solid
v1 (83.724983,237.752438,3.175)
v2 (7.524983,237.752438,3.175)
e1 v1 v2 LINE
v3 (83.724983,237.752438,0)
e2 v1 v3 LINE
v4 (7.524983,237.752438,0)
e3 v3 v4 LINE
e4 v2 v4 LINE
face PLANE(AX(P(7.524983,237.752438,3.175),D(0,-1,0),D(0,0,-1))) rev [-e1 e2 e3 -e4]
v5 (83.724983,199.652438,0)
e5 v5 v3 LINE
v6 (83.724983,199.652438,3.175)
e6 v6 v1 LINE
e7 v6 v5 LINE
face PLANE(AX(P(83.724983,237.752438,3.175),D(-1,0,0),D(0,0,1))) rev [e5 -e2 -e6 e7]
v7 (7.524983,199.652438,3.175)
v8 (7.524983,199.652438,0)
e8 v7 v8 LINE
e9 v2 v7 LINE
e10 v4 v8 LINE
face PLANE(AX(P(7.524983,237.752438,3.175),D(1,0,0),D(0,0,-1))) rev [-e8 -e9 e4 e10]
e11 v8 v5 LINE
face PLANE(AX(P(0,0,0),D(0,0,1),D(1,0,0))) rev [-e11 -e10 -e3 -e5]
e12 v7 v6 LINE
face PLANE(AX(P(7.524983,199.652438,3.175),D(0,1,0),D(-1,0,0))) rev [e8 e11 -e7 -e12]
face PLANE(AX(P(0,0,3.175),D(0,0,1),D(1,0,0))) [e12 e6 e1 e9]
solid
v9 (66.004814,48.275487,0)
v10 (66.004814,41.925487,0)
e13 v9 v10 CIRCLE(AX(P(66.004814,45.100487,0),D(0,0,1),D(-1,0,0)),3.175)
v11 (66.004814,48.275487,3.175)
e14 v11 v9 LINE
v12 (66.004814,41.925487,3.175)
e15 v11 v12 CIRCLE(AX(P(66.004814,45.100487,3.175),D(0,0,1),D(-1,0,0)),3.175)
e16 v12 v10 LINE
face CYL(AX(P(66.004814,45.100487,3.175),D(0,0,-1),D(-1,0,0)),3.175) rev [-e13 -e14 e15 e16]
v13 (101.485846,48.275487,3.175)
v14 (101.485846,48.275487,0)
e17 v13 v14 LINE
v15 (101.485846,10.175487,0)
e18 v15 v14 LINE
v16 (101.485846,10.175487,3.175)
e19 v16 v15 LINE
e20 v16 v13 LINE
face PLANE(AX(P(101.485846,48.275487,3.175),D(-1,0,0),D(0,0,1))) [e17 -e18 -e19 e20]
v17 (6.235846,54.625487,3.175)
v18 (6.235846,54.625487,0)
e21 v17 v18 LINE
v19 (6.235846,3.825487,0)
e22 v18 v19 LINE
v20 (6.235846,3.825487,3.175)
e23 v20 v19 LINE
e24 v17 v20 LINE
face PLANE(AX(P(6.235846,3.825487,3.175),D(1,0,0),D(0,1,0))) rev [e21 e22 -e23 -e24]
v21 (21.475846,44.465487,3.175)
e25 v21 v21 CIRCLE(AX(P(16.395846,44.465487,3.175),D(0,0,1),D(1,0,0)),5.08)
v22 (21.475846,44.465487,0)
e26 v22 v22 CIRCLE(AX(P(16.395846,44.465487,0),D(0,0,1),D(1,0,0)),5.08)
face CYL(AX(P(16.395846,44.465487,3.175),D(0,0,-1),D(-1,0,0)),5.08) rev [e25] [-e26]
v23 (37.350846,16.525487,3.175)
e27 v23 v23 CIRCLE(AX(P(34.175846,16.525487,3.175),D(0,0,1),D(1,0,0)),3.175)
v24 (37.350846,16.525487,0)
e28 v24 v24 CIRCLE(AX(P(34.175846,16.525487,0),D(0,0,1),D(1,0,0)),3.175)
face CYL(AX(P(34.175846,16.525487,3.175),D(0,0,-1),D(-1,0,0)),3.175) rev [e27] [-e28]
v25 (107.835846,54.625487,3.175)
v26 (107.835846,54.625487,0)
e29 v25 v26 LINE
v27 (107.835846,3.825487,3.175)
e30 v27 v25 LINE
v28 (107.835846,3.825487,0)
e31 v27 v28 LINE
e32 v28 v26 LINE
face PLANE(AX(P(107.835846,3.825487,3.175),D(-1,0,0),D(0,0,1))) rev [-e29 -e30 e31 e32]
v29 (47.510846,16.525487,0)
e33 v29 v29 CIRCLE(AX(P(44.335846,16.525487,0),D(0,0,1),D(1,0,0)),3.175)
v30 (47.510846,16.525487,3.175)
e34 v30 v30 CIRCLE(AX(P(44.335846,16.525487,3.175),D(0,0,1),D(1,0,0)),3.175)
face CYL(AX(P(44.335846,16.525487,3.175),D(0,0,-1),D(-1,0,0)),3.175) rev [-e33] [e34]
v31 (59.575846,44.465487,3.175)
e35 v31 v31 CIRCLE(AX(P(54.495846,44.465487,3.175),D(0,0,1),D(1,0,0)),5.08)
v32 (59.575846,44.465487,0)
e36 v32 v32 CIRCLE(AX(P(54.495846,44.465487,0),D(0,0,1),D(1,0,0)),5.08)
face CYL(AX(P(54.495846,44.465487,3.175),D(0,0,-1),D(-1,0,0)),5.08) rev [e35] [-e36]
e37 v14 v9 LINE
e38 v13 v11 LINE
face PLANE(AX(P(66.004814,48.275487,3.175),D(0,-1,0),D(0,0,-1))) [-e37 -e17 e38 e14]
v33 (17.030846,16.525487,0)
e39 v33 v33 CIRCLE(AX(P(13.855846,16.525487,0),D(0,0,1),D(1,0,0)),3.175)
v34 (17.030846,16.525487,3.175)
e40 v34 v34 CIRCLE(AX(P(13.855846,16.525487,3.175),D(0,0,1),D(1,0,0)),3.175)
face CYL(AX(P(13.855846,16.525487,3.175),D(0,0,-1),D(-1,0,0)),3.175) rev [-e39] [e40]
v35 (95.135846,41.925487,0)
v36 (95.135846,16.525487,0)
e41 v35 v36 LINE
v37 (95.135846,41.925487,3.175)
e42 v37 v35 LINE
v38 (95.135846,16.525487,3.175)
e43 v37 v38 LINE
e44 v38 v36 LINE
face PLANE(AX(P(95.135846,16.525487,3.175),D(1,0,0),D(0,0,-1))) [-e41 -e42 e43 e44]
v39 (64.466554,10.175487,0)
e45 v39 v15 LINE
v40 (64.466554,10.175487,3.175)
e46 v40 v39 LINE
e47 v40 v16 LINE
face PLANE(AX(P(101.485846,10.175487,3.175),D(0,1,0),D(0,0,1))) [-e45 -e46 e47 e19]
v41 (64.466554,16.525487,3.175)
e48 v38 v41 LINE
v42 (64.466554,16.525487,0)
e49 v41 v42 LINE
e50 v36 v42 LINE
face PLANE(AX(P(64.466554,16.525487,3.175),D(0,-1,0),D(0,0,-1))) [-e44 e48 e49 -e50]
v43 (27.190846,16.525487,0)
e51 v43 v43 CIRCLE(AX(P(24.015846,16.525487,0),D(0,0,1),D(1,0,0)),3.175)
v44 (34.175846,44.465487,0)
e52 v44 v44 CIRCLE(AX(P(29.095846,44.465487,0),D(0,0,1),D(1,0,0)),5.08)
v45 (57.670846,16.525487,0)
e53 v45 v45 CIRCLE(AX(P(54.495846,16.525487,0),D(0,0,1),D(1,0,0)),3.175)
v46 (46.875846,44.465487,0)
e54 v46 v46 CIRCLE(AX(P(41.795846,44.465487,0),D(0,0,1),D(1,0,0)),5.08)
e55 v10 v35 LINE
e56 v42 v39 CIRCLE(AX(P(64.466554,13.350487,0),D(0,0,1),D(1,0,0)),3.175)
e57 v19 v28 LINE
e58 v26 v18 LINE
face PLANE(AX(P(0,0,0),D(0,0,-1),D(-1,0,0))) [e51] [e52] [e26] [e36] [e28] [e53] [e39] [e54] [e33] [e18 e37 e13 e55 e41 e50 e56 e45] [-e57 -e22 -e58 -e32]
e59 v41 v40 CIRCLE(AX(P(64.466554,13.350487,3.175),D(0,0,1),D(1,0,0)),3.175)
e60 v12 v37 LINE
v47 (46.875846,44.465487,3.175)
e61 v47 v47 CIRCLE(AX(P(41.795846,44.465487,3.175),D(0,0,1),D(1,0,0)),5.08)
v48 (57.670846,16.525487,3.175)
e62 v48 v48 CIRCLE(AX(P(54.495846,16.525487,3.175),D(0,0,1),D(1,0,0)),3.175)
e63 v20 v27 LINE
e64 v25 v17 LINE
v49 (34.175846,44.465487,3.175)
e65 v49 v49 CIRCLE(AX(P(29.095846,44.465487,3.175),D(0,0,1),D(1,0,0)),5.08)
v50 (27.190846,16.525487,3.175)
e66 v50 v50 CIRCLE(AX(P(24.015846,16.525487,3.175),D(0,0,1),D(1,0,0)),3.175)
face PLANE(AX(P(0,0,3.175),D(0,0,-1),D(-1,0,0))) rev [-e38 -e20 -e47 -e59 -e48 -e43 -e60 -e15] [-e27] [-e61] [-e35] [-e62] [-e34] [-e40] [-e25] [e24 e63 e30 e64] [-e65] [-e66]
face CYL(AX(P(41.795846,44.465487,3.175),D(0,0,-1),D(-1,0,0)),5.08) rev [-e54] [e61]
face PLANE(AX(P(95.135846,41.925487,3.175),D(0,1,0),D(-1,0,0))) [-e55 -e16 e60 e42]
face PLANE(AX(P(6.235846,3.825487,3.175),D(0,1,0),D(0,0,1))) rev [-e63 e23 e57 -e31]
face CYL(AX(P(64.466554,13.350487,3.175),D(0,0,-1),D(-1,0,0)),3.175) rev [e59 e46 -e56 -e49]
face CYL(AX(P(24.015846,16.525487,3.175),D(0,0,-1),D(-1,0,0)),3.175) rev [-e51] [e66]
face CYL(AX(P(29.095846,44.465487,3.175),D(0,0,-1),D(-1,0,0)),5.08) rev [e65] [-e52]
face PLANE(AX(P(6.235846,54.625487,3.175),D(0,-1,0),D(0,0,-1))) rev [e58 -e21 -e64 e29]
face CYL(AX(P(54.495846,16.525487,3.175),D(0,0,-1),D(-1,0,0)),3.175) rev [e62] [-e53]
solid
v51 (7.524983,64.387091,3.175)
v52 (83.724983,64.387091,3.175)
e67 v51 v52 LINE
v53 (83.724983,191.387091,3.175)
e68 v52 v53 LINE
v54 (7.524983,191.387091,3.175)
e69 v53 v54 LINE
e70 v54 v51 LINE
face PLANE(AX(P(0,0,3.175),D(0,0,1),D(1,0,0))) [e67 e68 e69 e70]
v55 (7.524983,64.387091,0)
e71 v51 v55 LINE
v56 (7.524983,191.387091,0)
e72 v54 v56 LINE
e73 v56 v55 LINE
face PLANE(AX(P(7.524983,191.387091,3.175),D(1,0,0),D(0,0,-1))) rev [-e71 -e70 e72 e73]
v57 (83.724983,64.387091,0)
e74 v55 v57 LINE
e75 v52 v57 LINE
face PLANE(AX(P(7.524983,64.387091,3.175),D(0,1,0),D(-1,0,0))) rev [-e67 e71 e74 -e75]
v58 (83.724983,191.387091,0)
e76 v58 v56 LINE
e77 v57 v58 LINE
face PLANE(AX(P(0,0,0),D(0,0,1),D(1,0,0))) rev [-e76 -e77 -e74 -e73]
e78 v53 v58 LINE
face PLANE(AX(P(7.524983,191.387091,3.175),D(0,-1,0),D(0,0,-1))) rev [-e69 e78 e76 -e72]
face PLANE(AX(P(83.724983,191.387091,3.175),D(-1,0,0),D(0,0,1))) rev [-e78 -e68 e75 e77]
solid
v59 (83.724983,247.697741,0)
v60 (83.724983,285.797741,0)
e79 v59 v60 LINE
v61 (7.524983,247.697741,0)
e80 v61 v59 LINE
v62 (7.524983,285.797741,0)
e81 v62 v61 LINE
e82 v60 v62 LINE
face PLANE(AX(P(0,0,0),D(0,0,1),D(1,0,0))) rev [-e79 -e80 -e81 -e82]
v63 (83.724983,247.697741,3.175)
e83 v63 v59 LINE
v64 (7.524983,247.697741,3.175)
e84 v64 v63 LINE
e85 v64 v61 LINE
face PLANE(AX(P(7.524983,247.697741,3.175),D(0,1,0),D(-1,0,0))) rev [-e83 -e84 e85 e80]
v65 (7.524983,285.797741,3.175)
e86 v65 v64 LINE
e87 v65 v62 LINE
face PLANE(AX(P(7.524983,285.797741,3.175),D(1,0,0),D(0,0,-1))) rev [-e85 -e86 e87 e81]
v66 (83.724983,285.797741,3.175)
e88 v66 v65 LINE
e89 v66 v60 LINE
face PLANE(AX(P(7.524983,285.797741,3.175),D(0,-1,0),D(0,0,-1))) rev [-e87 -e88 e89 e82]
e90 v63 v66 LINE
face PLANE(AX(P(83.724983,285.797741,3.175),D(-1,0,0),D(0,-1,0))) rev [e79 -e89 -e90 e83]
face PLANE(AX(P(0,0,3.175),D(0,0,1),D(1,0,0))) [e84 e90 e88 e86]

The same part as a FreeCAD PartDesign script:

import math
import FreeCAD as App
import Part
import Sketcher

V = App.Vector
Q = App.Units.Quantity

doc = App.newDocument("Part")
params = doc.addObject("Spreadsheet::Sheet", "Params")
for row, (alias, value) in enumerate([
    ("sketch1_diameter", "0.4 in"),
    ("sketch1_diameter2", "0.25 in"),
    ("sketch1_width", "4 in"),
    ("sketch1_height", "2 in"),
    ("sketch1_height2", "1 in"),
    ("pad1_length", "0.125 in"),
    ("sketch2_width", "3 in"),
    ("sketch2_height", "5 in"),
    ("pad2_length", "0.125 in"),
    ("sketch3_width", "3 in"),
    ("sketch3_height", "1.5 in"),
    ("pad3_length", "0.125 in"),
    ("sketch4_width", "3 in"),
    ("sketch4_height", "1.5 in"),
    ("pad4_length", "0.125 in"),
], start=1):
    params.set(f"A{row}", alias)
    params.set(f"B{row}", "=" + value)
    params.setAlias(f"B{row}", alias)

body = doc.addObject("PartDesign::Body", "Body")

# Sketch on XY plane
sketch1 = body.newObject("Sketcher::SketchObject", "Sketch")
sketch1.AttachmentSupport = (doc.getObject("XY_Plane"), [""])
sketch1.MapMode = "FlatFace"
sketch1.addGeometry([
    Part.LineSegment(V(6.235846, 54.625487, 0), V(6.235846, 3.825487, 0)),  # 0
    Part.LineSegment(V(6.235846, 3.825487, 0), V(107.835846, 3.825487, 0)),  # 1
    Part.LineSegment(V(107.835846, 3.825487, 0), V(107.835846, 54.625487, 0)),  # 2
    Part.LineSegment(V(107.835846, 54.625487, 0), V(6.235846, 54.625487, 0)),  # 3
    Part.Circle(V(13.855846, 16.525487, 0), V(0, 0, 1), 3.175),  # 4
    Part.Circle(V(24.015846, 16.525487, 0), V(0, 0, 1), 3.175),  # 5
    Part.Circle(V(34.175846, 16.525487, 0), V(0, 0, 1), 3.175),  # 6
    Part.Circle(V(44.335846, 16.525487, 0), V(0, 0, 1), 3.175),  # 7
    Part.Circle(V(54.495846, 16.525487, 0), V(0, 0, 1), 3.175),  # 8
    Part.ArcOfCircle(Part.Circle(V(64.466554, 13.350487, 0), V(0, 0, 1), 3.175), math.radians(90), math.radians(270)),  # 9
    Part.LineSegment(V(64.466554, 16.525487, 0), V(95.135846, 16.525487, 0)),  # 10
    Part.LineSegment(V(95.135846, 16.525487, 0), V(95.135846, 41.925487, 0)),  # 11
    Part.LineSegment(V(95.135846, 41.925487, 0), V(66.004814, 41.925487, 0)),  # 12
    Part.ArcOfCircle(Part.Circle(V(66.004814, 45.100487, 0), V(0, 0, 1), 3.175), math.radians(90), math.radians(270)),  # 13
    Part.LineSegment(V(66.004814, 48.275487, 0), V(101.485846, 48.275487, 0)),  # 14
    Part.LineSegment(V(101.485846, 48.275487, 0), V(101.485846, 10.175487, 0)),  # 15
    Part.LineSegment(V(101.485846, 10.175487, 0), V(64.466554, 10.175487, 0)),  # 16
    Part.Circle(V(16.395846, 44.465487, 0), V(0, 0, 1), 5.08),  # 17
    Part.Circle(V(29.095846, 44.465487, 0), V(0, 0, 1), 5.08),  # 18
    Part.Circle(V(41.795846, 44.465487, 0), V(0, 0, 1), 5.08),  # 19
    Part.Circle(V(54.495846, 44.465487, 0), V(0, 0, 1), 5.08),  # 20
], False)
sketch1.addConstraint([
    Sketcher.Constraint("Coincident", 0, 2, 1, 1),
    Sketcher.Constraint("Coincident", 1, 2, 2, 1),
    Sketcher.Constraint("Coincident", 2, 2, 3, 1),
    Sketcher.Constraint("Coincident", 3, 2, 0, 1),
    Sketcher.Constraint("Tangent", 9, 1, 10, 1),
    Sketcher.Constraint("Coincident", 10, 2, 11, 1),
    Sketcher.Constraint("Coincident", 11, 2, 12, 1),
    Sketcher.Constraint("Tangent", 12, 2, 13, 2),
    Sketcher.Constraint("Tangent", 13, 1, 14, 1),
    Sketcher.Constraint("Coincident", 14, 2, 15, 1),
    Sketcher.Constraint("Coincident", 15, 2, 16, 1),
    Sketcher.Constraint("Tangent", 16, 2, 9, 2),
    Sketcher.Constraint("Vertical", 0),
    Sketcher.Constraint("Horizontal", 1),
    Sketcher.Constraint("Vertical", 2),
    Sketcher.Constraint("Horizontal", 3),
    Sketcher.Constraint("Horizontal", 10),
    Sketcher.Constraint("Vertical", 11),
    Sketcher.Constraint("Horizontal", 12),
    Sketcher.Constraint("Horizontal", 14),
    Sketcher.Constraint("Vertical", 15),
    Sketcher.Constraint("Horizontal", 16),
    Sketcher.Constraint("Equal", 4, 5),
    Sketcher.Constraint("Equal", 5, 6),
    Sketcher.Constraint("Equal", 6, 7),
    Sketcher.Constraint("Equal", 7, 8),
    Sketcher.Constraint("Equal", 8, 9),
    Sketcher.Constraint("Equal", 9, 13),
    Sketcher.Constraint("Equal", 17, 18),
    Sketcher.Constraint("Equal", 18, 19),
    Sketcher.Constraint("Equal", 19, 20),
    Sketcher.Constraint("Horizontal", 4, 3, 5, 3),
    Sketcher.Constraint("Horizontal", 5, 3, 6, 3),
    Sketcher.Constraint("Horizontal", 6, 3, 7, 3),
    Sketcher.Constraint("Horizontal", 7, 3, 8, 3),
    Sketcher.Constraint("Horizontal", 17, 3, 18, 3),
    Sketcher.Constraint("Horizontal", 18, 3, 19, 3),
    Sketcher.Constraint("Horizontal", 19, 3, 20, 3),
    Sketcher.Constraint("Horizontal", 8, 3, 9, 1),
    Sketcher.Constraint("Vertical", 8, 3, 20, 3),
    Sketcher.Constraint("Diameter", 17, Q("0.4 in")),
    Sketcher.Constraint("Diameter", 4, Q("0.25 in")),
    Sketcher.Constraint("DistanceX", 1, 1, 1, 2, Q("4 in")),
    Sketcher.Constraint("DistanceY", 0, 2, 0, 1, Q("2 in")),
    Sketcher.Constraint("DistanceY", 11, 1, 11, 2, Q("1 in")),
    Sketcher.Constraint("DistanceX", 17, 3, 19, 3, Q("1 in")),
    Sketcher.Constraint("DistanceX", 18, 3, 20, 3, Q("1 in")),
    Sketcher.Constraint("DistanceX", 4, 3, 5, 3, Q("0.4 in")),
    Sketcher.Constraint("DistanceX", 5, 3, 6, 3, Q("0.4 in")),
    Sketcher.Constraint("DistanceX", 6, 3, 7, 3, Q("0.4 in")),
    Sketcher.Constraint("DistanceX", 7, 3, 8, 3, Q("0.4 in")),
    Sketcher.Constraint("DistanceX", 4, 3, 17, 3, Q("0.1 in")),
    Sketcher.Constraint("DistanceY", 4, 3, 17, 3, Q("1.1 in")),
    Sketcher.Constraint("DistanceX", 0, 2, 4, 3, Q("0.3 in")),
    Sketcher.Constraint("DistanceY", 0, 2, 4, 3, Q("0.5 in")),
    Sketcher.Constraint("DistanceX", 10, 2, 1, 2, Q("0.5 in")),
    Sketcher.Constraint("DistanceX", 14, 2, 2, 2, Q("0.25 in")),
    Sketcher.Constraint("DistanceX", 12, 2, 12, 1, Q("29.131032 mm")),
    Sketcher.Constraint("DistanceX", 10, 1, 10, 2, Q("30.669292 mm")),
    Sketcher.Constraint("DistanceX", -1, 1, 4, 3, Q("13.855846 mm")),
    Sketcher.Constraint("DistanceY", -1, 1, 4, 3, Q("16.525487 mm")),
])
sketch1.setExpression("Constraints[40]", "Params.sketch1_diameter")
sketch1.setExpression("Constraints[41]", "Params.sketch1_diameter2")
sketch1.setExpression("Constraints[42]", "Params.sketch1_width")
sketch1.setExpression("Constraints[43]", "Params.sketch1_height")
sketch1.setExpression("Constraints[44]", "Params.sketch1_height2")
pad1 = body.newObject("PartDesign::Pad", "Pad")
pad1.Profile = sketch1
pad1.setExpression("Length", "Params.pad1_length")
body2 = doc.addObject("PartDesign::Body", "Body001")

# Sketch on XY plane
sketch2 = body2.newObject("Sketcher::SketchObject", "Sketch001")
sketch2.AttachmentSupport = (doc.getObject("XY_Plane001"), [""])
sketch2.MapMode = "FlatFace"
sketch2.addGeometry([
    Part.LineSegment(V(7.524983, 191.387091, 0), V(7.524983, 64.387091, 0)),
    Part.LineSegment(V(7.524983, 64.387091, 0), V(83.724983, 64.387091, 0)),
    Part.LineSegment(V(83.724983, 64.387091, 0), V(83.724983, 191.387091, 0)),
    Part.LineSegment(V(83.724983, 191.387091, 0), V(7.524983, 191.387091, 0)),
], False)
sketch2.addConstraint([
    Sketcher.Constraint("Coincident", 0, 2, 1, 1),
    Sketcher.Constraint("Coincident", 1, 2, 2, 1),
    Sketcher.Constraint("Coincident", 2, 2, 3, 1),
    Sketcher.Constraint("Coincident", 3, 2, 0, 1),
    Sketcher.Constraint("Vertical", 0),
    Sketcher.Constraint("Horizontal", 1),
    Sketcher.Constraint("Vertical", 2),
    Sketcher.Constraint("Horizontal", 3),
    Sketcher.Constraint("DistanceX", 1, 1, 1, 2, Q("3 in")),
    Sketcher.Constraint("DistanceY", 0, 2, 0, 1, Q("5 in")),
    Sketcher.Constraint("DistanceY", -1, 1, 0, 2, Q("64.387091 mm")),
    Sketcher.Constraint("DistanceX", -1, 1, 0, 2, Q("7.524983 mm")),
])
sketch2.setExpression("Constraints[8]", "Params.sketch2_width")
sketch2.setExpression("Constraints[9]", "Params.sketch2_height")
pad2 = body2.newObject("PartDesign::Pad", "Pad001")
pad2.Profile = sketch2
pad2.setExpression("Length", "Params.pad2_length")
body3 = doc.addObject("PartDesign::Body", "Body002")

# Sketch on XY plane
sketch3 = body3.newObject("Sketcher::SketchObject", "Sketch002")
sketch3.AttachmentSupport = (doc.getObject("XY_Plane002"), [""])
sketch3.MapMode = "FlatFace"
sketch3.addGeometry([
    Part.LineSegment(V(7.524983, 285.797741, 0), V(7.524983, 247.697741, 0)),
    Part.LineSegment(V(7.524983, 247.697741, 0), V(83.724983, 247.697741, 0)),
    Part.LineSegment(V(83.724983, 247.697741, 0), V(83.724983, 285.797741, 0)),
    Part.LineSegment(V(83.724983, 285.797741, 0), V(7.524983, 285.797741, 0)),
], False)
sketch3.addConstraint([
    Sketcher.Constraint("Coincident", 0, 2, 1, 1),
    Sketcher.Constraint("Coincident", 1, 2, 2, 1),
    Sketcher.Constraint("Coincident", 2, 2, 3, 1),
    Sketcher.Constraint("Coincident", 3, 2, 0, 1),
    Sketcher.Constraint("Vertical", 0),
    Sketcher.Constraint("Horizontal", 1),
    Sketcher.Constraint("Vertical", 2),
    Sketcher.Constraint("Horizontal", 3),
    Sketcher.Constraint("DistanceX", 1, 1, 1, 2, Q("3 in")),
    Sketcher.Constraint("DistanceY", 0, 2, 0, 1, Q("1.5 in")),
    Sketcher.Constraint("DistanceY", -1, 1, 0, 2, Q("247.697741 mm")),
    Sketcher.Constraint("DistanceX", -1, 1, 0, 2, Q("7.524983 mm")),
])
sketch3.setExpression("Constraints[8]", "Params.sketch3_width")
sketch3.setExpression("Constraints[9]", "Params.sketch3_height")
pad3 = body3.newObject("PartDesign::Pad", "Pad002")
pad3.Profile = sketch3
pad3.setExpression("Length", "Params.pad3_length")
body4 = doc.addObject("PartDesign::Body", "Body003")

# Sketch on XY plane
sketch4 = body4.newObject("Sketcher::SketchObject", "Sketch003")
sketch4.AttachmentSupport = (doc.getObject("XY_Plane003"), [""])
sketch4.MapMode = "FlatFace"
sketch4.addGeometry([
    Part.LineSegment(V(7.524983, 237.752438, 0), V(7.524983, 199.652438, 0)),
    Part.LineSegment(V(7.524983, 199.652438, 0), V(83.724983, 199.652438, 0)),
    Part.LineSegment(V(83.724983, 199.652438, 0), V(83.724983, 237.752438, 0)),
    Part.LineSegment(V(83.724983, 237.752438, 0), V(7.524983, 237.752438, 0)),
], False)
sketch4.addConstraint([
    Sketcher.Constraint("Coincident", 0, 2, 1, 1),
    Sketcher.Constraint("Coincident", 1, 2, 2, 1),
    Sketcher.Constraint("Coincident", 2, 2, 3, 1),
    Sketcher.Constraint("Coincident", 3, 2, 0, 1),
    Sketcher.Constraint("Vertical", 0),
    Sketcher.Constraint("Horizontal", 1),
    Sketcher.Constraint("Vertical", 2),
    Sketcher.Constraint("Horizontal", 3),
    Sketcher.Constraint("DistanceX", 1, 1, 1, 2, Q("3 in")),
    Sketcher.Constraint("DistanceY", 0, 2, 0, 1, Q("1.5 in")),
    Sketcher.Constraint("DistanceX", -1, 1, 0, 2, Q("7.524983 mm")),
    Sketcher.Constraint("DistanceY", -1, 1, 0, 2, Q("199.652438 mm")),
])
sketch4.setExpression("Constraints[8]", "Params.sketch4_width")
sketch4.setExpression("Constraints[9]", "Params.sketch4_height")
pad4 = body4.newObject("PartDesign::Pad", "Pad003")
pad4.Profile = sketch4
pad4.setExpression("Length", "Params.pad4_length")

doc.recompute()
